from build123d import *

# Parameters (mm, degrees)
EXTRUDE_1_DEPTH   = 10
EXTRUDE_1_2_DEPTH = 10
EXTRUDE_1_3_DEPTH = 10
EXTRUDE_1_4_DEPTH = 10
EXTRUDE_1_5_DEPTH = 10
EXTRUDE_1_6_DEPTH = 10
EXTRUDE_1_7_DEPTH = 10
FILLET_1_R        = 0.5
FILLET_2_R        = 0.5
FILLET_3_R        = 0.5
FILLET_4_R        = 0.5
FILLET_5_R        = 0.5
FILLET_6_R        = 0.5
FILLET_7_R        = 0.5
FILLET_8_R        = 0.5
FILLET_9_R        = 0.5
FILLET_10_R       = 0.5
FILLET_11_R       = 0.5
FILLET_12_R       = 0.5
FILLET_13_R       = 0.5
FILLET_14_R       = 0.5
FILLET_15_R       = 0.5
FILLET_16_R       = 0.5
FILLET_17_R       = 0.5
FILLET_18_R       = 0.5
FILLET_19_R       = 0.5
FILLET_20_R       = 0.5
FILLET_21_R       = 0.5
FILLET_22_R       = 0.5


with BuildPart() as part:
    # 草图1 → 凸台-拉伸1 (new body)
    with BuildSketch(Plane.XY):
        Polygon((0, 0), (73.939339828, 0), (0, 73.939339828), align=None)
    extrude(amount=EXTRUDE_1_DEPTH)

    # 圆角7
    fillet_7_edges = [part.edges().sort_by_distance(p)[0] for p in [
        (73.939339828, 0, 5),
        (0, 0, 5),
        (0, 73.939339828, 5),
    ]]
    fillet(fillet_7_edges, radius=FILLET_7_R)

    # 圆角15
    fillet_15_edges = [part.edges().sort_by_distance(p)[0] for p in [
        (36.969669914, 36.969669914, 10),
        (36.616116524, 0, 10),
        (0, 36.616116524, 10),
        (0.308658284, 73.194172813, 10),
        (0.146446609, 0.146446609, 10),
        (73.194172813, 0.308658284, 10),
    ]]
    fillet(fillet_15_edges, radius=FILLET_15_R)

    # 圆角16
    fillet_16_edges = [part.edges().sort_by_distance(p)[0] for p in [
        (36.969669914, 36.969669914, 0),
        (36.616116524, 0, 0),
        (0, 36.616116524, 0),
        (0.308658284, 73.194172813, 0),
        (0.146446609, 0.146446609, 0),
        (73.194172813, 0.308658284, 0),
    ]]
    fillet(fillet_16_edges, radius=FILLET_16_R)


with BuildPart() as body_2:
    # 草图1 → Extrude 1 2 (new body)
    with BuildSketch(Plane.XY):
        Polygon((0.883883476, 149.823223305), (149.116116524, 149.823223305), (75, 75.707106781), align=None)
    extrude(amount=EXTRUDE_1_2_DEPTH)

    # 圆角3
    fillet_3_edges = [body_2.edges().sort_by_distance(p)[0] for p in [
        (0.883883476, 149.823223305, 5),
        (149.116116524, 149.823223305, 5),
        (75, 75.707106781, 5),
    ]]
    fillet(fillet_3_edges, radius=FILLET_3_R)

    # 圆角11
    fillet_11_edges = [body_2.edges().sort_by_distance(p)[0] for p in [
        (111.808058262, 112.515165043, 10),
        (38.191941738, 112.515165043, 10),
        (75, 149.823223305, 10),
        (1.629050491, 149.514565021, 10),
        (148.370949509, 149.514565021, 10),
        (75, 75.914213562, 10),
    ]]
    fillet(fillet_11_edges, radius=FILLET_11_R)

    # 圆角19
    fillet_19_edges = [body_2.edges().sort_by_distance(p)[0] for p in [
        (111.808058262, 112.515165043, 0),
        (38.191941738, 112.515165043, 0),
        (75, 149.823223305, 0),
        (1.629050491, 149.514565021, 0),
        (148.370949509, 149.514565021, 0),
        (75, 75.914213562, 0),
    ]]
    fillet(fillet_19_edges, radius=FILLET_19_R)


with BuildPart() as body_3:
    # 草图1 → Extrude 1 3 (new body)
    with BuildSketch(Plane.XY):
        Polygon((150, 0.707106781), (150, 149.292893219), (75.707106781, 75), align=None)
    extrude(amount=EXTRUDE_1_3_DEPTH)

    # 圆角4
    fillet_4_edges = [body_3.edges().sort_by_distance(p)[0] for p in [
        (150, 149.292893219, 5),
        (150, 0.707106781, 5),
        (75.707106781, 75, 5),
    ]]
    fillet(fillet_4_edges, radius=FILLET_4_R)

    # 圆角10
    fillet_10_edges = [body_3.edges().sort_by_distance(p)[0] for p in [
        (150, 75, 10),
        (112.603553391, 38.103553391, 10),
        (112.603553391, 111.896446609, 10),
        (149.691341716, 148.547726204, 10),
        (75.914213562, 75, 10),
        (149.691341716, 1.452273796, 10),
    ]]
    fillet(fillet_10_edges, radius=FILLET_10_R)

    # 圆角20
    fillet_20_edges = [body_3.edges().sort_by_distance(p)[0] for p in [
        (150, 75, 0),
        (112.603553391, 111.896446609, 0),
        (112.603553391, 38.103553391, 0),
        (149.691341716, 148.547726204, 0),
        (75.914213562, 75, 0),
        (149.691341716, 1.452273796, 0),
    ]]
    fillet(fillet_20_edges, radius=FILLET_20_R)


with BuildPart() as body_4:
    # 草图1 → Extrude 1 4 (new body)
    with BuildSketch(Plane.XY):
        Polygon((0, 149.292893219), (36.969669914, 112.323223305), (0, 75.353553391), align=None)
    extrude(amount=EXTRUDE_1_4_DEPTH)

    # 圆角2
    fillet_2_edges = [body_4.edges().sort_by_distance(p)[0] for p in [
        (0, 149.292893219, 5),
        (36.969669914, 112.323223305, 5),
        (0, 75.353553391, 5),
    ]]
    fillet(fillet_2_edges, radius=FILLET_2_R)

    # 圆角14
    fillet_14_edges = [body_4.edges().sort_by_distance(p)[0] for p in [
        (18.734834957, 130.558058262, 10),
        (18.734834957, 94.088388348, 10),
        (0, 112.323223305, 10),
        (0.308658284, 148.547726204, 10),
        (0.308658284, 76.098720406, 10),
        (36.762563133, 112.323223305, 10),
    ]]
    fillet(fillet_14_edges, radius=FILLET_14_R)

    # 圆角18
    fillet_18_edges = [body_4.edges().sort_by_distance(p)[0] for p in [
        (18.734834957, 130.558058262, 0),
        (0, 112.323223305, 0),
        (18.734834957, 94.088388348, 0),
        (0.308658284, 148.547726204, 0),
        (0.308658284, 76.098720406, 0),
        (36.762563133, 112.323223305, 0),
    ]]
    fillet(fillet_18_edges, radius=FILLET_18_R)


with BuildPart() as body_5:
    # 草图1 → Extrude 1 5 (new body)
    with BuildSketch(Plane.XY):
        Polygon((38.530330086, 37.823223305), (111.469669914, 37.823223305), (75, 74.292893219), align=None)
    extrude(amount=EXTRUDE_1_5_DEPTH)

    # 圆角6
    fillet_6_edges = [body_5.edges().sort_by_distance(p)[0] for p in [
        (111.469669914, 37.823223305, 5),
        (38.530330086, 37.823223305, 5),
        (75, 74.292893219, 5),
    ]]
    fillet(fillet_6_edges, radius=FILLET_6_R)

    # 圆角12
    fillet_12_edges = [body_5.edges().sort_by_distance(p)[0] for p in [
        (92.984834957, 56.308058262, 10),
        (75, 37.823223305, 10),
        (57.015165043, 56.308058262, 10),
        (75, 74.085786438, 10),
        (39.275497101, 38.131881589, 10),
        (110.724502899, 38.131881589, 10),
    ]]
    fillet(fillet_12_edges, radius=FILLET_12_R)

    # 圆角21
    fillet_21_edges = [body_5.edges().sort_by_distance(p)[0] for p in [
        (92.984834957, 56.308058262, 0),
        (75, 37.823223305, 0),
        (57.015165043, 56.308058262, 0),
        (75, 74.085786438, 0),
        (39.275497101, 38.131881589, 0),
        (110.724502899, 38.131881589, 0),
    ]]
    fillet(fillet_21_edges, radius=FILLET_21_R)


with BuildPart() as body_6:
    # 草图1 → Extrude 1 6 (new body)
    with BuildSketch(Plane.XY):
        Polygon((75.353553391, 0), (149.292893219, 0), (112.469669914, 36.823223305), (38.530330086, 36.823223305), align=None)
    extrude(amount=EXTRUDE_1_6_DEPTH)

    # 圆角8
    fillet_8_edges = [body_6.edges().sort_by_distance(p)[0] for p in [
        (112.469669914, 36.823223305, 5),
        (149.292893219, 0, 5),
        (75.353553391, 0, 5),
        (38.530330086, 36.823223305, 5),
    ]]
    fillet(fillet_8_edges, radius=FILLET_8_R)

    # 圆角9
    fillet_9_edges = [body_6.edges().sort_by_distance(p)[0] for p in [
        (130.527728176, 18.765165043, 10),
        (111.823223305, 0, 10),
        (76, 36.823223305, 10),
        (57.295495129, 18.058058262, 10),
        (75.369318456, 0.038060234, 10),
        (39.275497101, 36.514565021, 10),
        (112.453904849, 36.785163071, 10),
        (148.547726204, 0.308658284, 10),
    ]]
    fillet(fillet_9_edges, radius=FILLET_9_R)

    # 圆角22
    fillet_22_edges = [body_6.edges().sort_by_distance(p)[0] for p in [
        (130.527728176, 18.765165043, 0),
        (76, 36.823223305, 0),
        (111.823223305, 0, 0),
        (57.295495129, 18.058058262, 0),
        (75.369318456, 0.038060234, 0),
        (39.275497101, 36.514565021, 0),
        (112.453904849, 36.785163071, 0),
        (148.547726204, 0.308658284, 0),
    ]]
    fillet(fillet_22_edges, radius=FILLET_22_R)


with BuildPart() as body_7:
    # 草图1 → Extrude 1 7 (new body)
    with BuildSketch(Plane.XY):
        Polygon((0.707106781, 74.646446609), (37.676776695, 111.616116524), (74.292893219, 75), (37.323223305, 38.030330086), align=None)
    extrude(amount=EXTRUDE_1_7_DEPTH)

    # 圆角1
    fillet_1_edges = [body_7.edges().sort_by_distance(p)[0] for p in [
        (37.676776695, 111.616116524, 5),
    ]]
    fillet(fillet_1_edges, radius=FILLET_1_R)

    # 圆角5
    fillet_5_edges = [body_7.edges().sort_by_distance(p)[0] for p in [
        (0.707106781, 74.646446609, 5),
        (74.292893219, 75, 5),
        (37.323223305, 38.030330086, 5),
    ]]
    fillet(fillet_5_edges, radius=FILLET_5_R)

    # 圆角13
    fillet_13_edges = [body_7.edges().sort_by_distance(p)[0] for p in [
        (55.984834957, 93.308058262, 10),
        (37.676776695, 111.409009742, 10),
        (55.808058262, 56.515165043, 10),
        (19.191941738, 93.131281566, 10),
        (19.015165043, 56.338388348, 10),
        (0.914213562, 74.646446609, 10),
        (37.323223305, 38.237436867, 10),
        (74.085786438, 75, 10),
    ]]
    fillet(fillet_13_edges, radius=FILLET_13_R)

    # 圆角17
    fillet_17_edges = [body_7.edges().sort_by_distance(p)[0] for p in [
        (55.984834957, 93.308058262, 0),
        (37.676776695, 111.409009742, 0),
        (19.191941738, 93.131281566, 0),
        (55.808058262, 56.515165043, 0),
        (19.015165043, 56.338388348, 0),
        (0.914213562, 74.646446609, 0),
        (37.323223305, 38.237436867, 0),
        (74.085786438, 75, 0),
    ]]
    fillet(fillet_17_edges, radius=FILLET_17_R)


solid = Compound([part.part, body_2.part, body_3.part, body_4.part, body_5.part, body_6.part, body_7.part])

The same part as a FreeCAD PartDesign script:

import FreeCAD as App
import Part
import Sketcher

V = App.Vector
Q = App.Units.Quantity


def edges_at(feature, points):
    """Names of the edges that pass closest to the given points."""
    edges = feature.Shape.Edges
    near = lambda p: min(range(len(edges)), key=lambda i: edges[i].distToShape(Part.Vertex(*p))[0])
    return sorted({f"Edge{near(p) + 1}" for p in points})

doc = App.newDocument("Part")
params = doc.addObject("Spreadsheet::Sheet", "Params")
for row, (alias, value) in enumerate([
    ("pad1_length", "10 mm"),
    ("fillet_radius", "0.5 mm"),
    ("fillet2_radius", "0.5 mm"),
    ("fillet3_radius", "0.5 mm"),
    ("pad2_length", "10 mm"),
    ("fillet4_radius", "0.5 mm"),
    ("fillet5_radius", "0.5 mm"),
    ("fillet6_radius", "0.5 mm"),
    ("pad3_length", "10 mm"),
    ("fillet7_radius", "0.5 mm"),
    ("fillet8_radius", "0.5 mm"),
    ("fillet9_radius", "0.5 mm"),
    ("pad4_length", "10 mm"),
    ("fillet10_radius", "0.5 mm"),
    ("fillet11_radius", "0.5 mm"),
    ("fillet12_radius", "0.5 mm"),
    ("pad5_length", "10 mm"),
    ("fillet13_radius", "0.5 mm"),
    ("fillet14_radius", "0.5 mm"),
    ("fillet15_radius", "0.5 mm"),
    ("pad6_length", "10 mm"),
    ("fillet16_radius", "0.5 mm"),
    ("fillet17_radius", "0.5 mm"),
    ("fillet18_radius", "0.5 mm"),
    ("pad7_length", "10 mm"),
    ("fillet19_radius", "0.5 mm"),
    ("fillet20_radius", "0.5 mm"),
    ("fillet21_radius", "0.5 mm"),
    ("fillet22_radius", "0.5 mm"),
], start=1):
    params.set(f"A{row}", alias)
    params.set(f"B{row}", "=" + value)
    params.setAlias(f"B{row}", alias)

body = doc.addObject("PartDesign::Body", "Body")

sketch1 = body.newObject("Sketcher::SketchObject", "Sketch")
sketch1.AttachmentSupport = (doc.getObject("XY_Plane"), [""])
sketch1.MapMode = "FlatFace"
sketch1.addGeometry([
    Part.LineSegment(V(0, 0, 0), V(74, 0, 0)),
    Part.LineSegment(V(74, 0, 0), V(0, 74, 0)),
    Part.LineSegment(V(0, 74, 0), V(0, 0, 0)),
], False)
sketch1.addConstraint([
    Sketcher.Constraint("Coincident", 0, 2, 1, 1),
    Sketcher.Constraint("Coincident", 1, 2, 2, 1),
    Sketcher.Constraint("Coincident", 2, 2, 0, 1),
    Sketcher.Constraint("Horizontal", 0),
    Sketcher.Constraint("Vertical", 2),
    Sketcher.Constraint("Coincident", 2, 2, -1, 1),
    Sketcher.Constraint("Equal", 0, 2),
    Sketcher.Constraint("DistanceX", 0, 1, 0, 2, 73.93934),
])
pad1 = body.newObject("PartDesign::Pad", "Pad")
pad1.Profile = sketch1
pad1.setExpression("Length", "Params.pad1_length")
doc.recompute()

fillet = body.newObject("PartDesign::Fillet", "Fillet")
fillet.Base = (pad1, edges_at(pad1, [(73.939, 0, 5), (0, 0, 5), (0, 73.939, 5)]))
fillet.setExpression("Radius", "Params.fillet_radius")
doc.recompute()

fillet2 = body.newObject("PartDesign::Fillet", "Fillet001")
fillet2.Base = (fillet, edges_at(fillet, [
    (36.97, 36.97, 10),
    (36.616, 0, 10),
    (0, 36.616, 10),
    (0.309, 73.194, 10),
    (0.146, 0.146, 10),
    (73.194, 0.309, 10),
]))
fillet2.setExpression("Radius", "Params.fillet2_radius")
doc.recompute()

fillet3 = body.newObject("PartDesign::Fillet", "Fillet002")
fillet3.Base = (fillet2, edges_at(fillet2, [
    (36.97, 36.97, 0),
    (36.616, 0, 0),
    (0, 36.616, 0),
    (0.309, 73.194, 0),
    (0.146, 0.146, 0),
    (73.194, 0.309, 0),
]))
fillet3.setExpression("Radius", "Params.fillet3_radius")
body2 = doc.addObject("PartDesign::Body", "Body001")

sketch2 = body2.newObject("Sketcher::SketchObject", "Sketch001")
sketch2.AttachmentSupport = (doc.getObject("XY_Plane001"), [""])
sketch2.MapMode = "FlatFace"
sketch2.addGeometry([
    Part.LineSegment(V(149, 150, 0), V(1, 150, 0)),
    Part.LineSegment(V(1, 150, 0), V(75, 76, 0)),
    Part.LineSegment(V(75, 76, 0), V(149, 150, 0)),
], False)
sketch2.addConstraint([
    Sketcher.Constraint("Coincident", 0, 2, 1, 1),
    Sketcher.Constraint("Coincident", 1, 2, 2, 1),
    Sketcher.Constraint("Coincident", 2, 2, 0, 1),
    Sketcher.Constraint("Horizontal", 0),
    Sketcher.Constraint("Perpendicular", 1, 2),
    Sketcher.Constraint("Equal", 1, 2),
    Sketcher.Constraint("DistanceX", -1, 1, 1, 2, 75.0),
    Sketcher.Constraint("DistanceX", 0, 2, 0, 1, 148.232233),
    Sketcher.Constraint("DistanceY", -1, 1, 0, 2, 149.823223),
])
pad2 = body2.newObject("PartDesign::Pad", "Pad001")
pad2.Profile = sketch2
pad2.setExpression("Length", "Params.pad2_length")
doc.recompute()

fillet4 = body2.newObject("PartDesign::Fillet", "Fillet003")
fillet4.Base = (pad2, edges_at(pad2, [(0.884, 149.823, 5), (149.116, 149.823, 5), (75, 75.707, 5)]))
fillet4.setExpression("Radius", "Params.fillet4_radius")
doc.recompute()

fillet5 = body2.newObject("PartDesign::Fillet", "Fillet004")
fillet5.Base = (fillet4, edges_at(fillet4, [
    (111.808, 112.515, 10),
    (38.192, 112.515, 10),
    (75, 149.823, 10),
    (1.629, 149.515, 10),
    (148.371, 149.515, 10),
    (75, 75.914, 10),
]))
fillet5.setExpression("Radius", "Params.fillet5_radius")
doc.recompute()

fillet6 = body2.newObject("PartDesign::Fillet", "Fillet005")
fillet6.Base = (fillet5, edges_at(fillet5, [
    (111.808, 112.515, 0),
    (38.192, 112.515, 0),
    (75, 149.823, 0),
    (1.629, 149.515, 0),
    (148.371, 149.515, 0),
    (75, 75.914, 0),
]))
fillet6.setExpression("Radius", "Params.fillet6_radius")
body3 = doc.addObject("PartDesign::Body", "Body002")

sketch3 = body3.newObject("Sketcher::SketchObject", "Sketch002")
sketch3.AttachmentSupport = (doc.getObject("XY_Plane002"), [""])
sketch3.MapMode = "FlatFace"
sketch3.addGeometry([
    Part.LineSegment(V(150, 1, 0), V(150, 149, 0)),
    Part.LineSegment(V(150, 149, 0), V(76, 75, 0)),
    Part.LineSegment(V(76, 75, 0), V(150, 1, 0)),
], False)
sketch3.addConstraint([
    Sketcher.Constraint("Coincident", 0, 2, 1, 1),
    Sketcher.Constraint("Coincident", 1, 2, 2, 1),
    Sketcher.Constraint("Coincident", 2, 2, 0, 1),
    Sketcher.Constraint("Vertical", 0),
    Sketcher.Constraint("Perpendicular", 1, 2),
    Sketcher.Constraint("Equal", 1, 2),
    Sketcher.Constraint("DistanceX", -1, 1, 0, 2, 150.0),
    Sketcher.Constraint("DistanceY", -1, 1, 1, 2, 75.0),
    Sketcher.Constraint("DistanceY", 0, 1, 0, 2, 148.585786),
])
pad3 = body3.newObject("PartDesign::Pad", "Pad002")
pad3.Profile = sketch3
pad3.setExpression("Length", "Params.pad3_length")
doc.recompute()

fillet7 = body3.newObject("PartDesign::Fillet", "Fillet006")
fillet7.Base = (pad3, edges_at(pad3, [(150, 149.293, 5), (150, 0.707, 5), (75.707, 75, 5)]))
fillet7.setExpression("Radius", "Params.fillet7_radius")
doc.recompute()

fillet8 = body3.newObject("PartDesign::Fillet", "Fillet007")
fillet8.Base = (fillet7, edges_at(fillet7, [
    (150, 75, 10),
    (112.604, 38.104, 10),
    (112.604, 111.896, 10),
    (149.691, 148.548, 10),
    (75.914, 75, 10),
    (149.691, 1.452, 10),
]))
fillet8.setExpression("Radius", "Params.fillet8_radius")
doc.recompute()

fillet9 = body3.newObject("PartDesign::Fillet", "Fillet008")
fillet9.Base = (fillet8, edges_at(fillet8, [
    (150, 75, 0),
    (112.604, 111.896, 0),
    (112.604, 38.104, 0),
    (149.691, 148.548, 0),
    (75.914, 75, 0),
    (149.691, 1.452, 0),
]))
fillet9.setExpression("Radius", "Params.fillet9_radius")
body4 = doc.addObject("PartDesign::Body", "Body003")

sketch4 = body4.newObject("Sketcher::SketchObject", "Sketch003")
sketch4.AttachmentSupport = (doc.getObject("XY_Plane003"), [""])
sketch4.MapMode = "FlatFace"
sketch4.addGeometry([
    Part.LineSegment(V(37, 112, 0), V(0, 149, 0)),
    Part.LineSegment(V(0, 149, 0), V(0, 75, 0)),
    Part.LineSegment(V(0, 75, 0), V(37, 112, 0)),
], False)
sketch4.addConstraint([
    Sketcher.Constraint("Coincident", 0, 2, 1, 1),
    Sketcher.Constraint("Coincident", 1, 2, 2, 1),
    Sketcher.Constraint("Coincident", 2, 2, 0, 1),
    Sketcher.Constraint("Vertical", 1),
    Sketcher.Constraint("PointOnObject", 0, 2, -2),
    Sketcher.Constraint("Perpendicular", 0, 2),
    Sketcher.Constraint("Equal", 0, 2),
    Sketcher.Constraint("DistanceY", 1, 2, 1, 1, 73.93934),
    Sketcher.Constraint("DistanceY", -1, 1, 0, 2, 149.292893),
])
pad4 = body4.newObject("PartDesign::Pad", "Pad003")
pad4.Profile = sketch4
pad4.setExpression("Length", "Params.pad4_length")
doc.recompute()

fillet10 = body4.newObject("PartDesign::Fillet", "Fillet009")
fillet10.Base = (pad4, edges_at(pad4, [(0, 149.293, 5), (36.97, 112.323, 5), (0, 75.354, 5)]))
fillet10.setExpression("Radius", "Params.fillet10_radius")
doc.recompute()

fillet11 = body4.newObject("PartDesign::Fillet", "Fillet010")
fillet11.Base = (fillet10, edges_at(fillet10, [
    (18.735, 130.558, 10),
    (18.735, 94.088, 10),
    (0, 112.323, 10),
    (0.309, 148.548, 10),
    (0.309, 76.099, 10),
    (36.763, 112.323, 10),
]))
fillet11.setExpression("Radius", "Params.fillet11_radius")
doc.recompute()

fillet12 = body4.newObject("PartDesign::Fillet", "Fillet011")
fillet12.Base = (fillet11, edges_at(fillet11, [
    (18.735, 130.558, 0),
    (0, 112.323, 0),
    (18.735, 94.088, 0),
    (0.309, 148.548, 0),
    (0.309, 76.099, 0),
    (36.763, 112.323, 0),
]))
fillet12.setExpression("Radius", "Params.fillet12_radius")
body5 = doc.addObject("PartDesign::Body", "Body004")

sketch5 = body5.newObject("Sketcher::SketchObject", "Sketch004")
sketch5.AttachmentSupport = (doc.getObject("XY_Plane004"), [""])
sketch5.MapMode = "FlatFace"
sketch5.addGeometry([
    Part.LineSegment(V(39, 38, 0), V(111, 38, 0)),
    Part.LineSegment(V(111, 38, 0), V(75, 74, 0)),
    Part.LineSegment(V(75, 74, 0), V(39, 38, 0)),
], False)
sketch5.addConstraint([
    Sketcher.Constraint("Coincident", 0, 2, 1, 1),
    Sketcher.Constraint("Coincident", 1, 2, 2, 1),
    Sketcher.Constraint("Coincident", 2, 2, 0, 1),
    Sketcher.Constraint("Horizontal", 0),
    Sketcher.Constraint("Perpendicular", 1, 2),
    Sketcher.Constraint("Equal", 1, 2),
    Sketcher.Constraint("DistanceX", -1, 1, 1, 2, 75.0),
    Sketcher.Constraint("Distance", 1, 51.575902),
    Sketcher.Constraint("DistanceY", -1, 1, 0, 2, 37.823223),
])
pad5 = body5.newObject("PartDesign::Pad", "Pad004")
pad5.Profile = sketch5
pad5.setExpression("Length", "Params.pad5_length")
doc.recompute()

fillet13 = body5.newObject("PartDesign::Fillet", "Fillet012")
fillet13.Base = (pad5, edges_at(pad5, [(111.47, 37.823, 5), (38.53, 37.823, 5), (75, 74.293, 5)]))
fillet13.setExpression("Radius", "Params.fillet13_radius")
doc.recompute()

fillet14 = body5.newObject("PartDesign::Fillet", "Fillet013")
fillet14.Base = (fillet13, edges_at(fillet13, [
    (92.985, 56.308, 10),
    (75, 37.823, 10),
    (57.015, 56.308, 10),
    (75, 74.086, 10),
    (39.275, 38.132, 10),
    (110.725, 38.132, 10),
]))
fillet14.setExpression("Radius", "Params.fillet14_radius")
doc.recompute()

fillet15 = body5.newObject("PartDesign::Fillet", "Fillet014")
fillet15.Base = (fillet14, edges_at(fillet14, [
    (92.985, 56.308, 0),
    (75, 37.823, 0),
    (57.015, 56.308, 0),
    (75, 74.086, 0),
    (39.275, 38.132, 0),
    (110.725, 38.132, 0),
]))
fillet15.setExpression("Radius", "Params.fillet15_radius")
body6 = doc.addObject("PartDesign::Body", "Body005")

sketch6 = body6.newObject("Sketcher::SketchObject", "Sketch005")
sketch6.AttachmentSupport = (doc.getObject("XY_Plane005"), [""])
sketch6.MapMode = "FlatFace"
sketch6.addGeometry([
    Part.LineSegment(V(75, 0, 0), V(149, 0, 0)),
    Part.LineSegment(V(149, 0, 0), V(112, 37, 0)),
    Part.LineSegment(V(112, 37, 0), V(39, 37, 0)),
    Part.LineSegment(V(39, 37, 0), V(75, 0, 0)),
], False)
sketch6.addConstraint([
    Sketcher.Constraint("Coincident", 0, 2, 1, 1),
    Sketcher.Constraint("Coincident", 1, 2, 2, 1),
    Sketcher.Constraint("Coincident", 2, 2, 3, 1),
    Sketcher.Constraint("Coincident", 3, 2, 0, 1),
    Sketcher.Constraint("Horizontal", 0),
    Sketcher.Constraint("Horizontal", 2),
    Sketcher.Constraint("PointOnObject", 0, 2, -1),
    Sketcher.Constraint("Parallel", 1, 3),
    Sketcher.Constraint("Angle", 1, Q("135 deg")),
    Sketcher.Constraint("Distance", 1, 52.075902),
    Sketcher.Constraint("DistanceX", 0, 1, 0, 2, 73.93934),
    Sketcher.Constraint("DistanceX", -1, 1, 1, 2, 112.46967),
])
pad6 = body6.newObject("PartDesign::Pad", "Pad005")
pad6.Profile = sketch6
pad6.setExpression("Length", "Params.pad6_length")
doc.recompute()

fillet16 = body6.newObject("PartDesign::Fillet", "Fillet015")
fillet16.Base = (pad6, edges_at(pad6, [
    (112.47, 36.823, 5),
    (149.293, 0, 5),
    (75.354, 0, 5),
    (38.53, 36.823, 5),
]))
fillet16.setExpression("Radius", "Params.fillet16_radius")
doc.recompute()

fillet17 = body6.newObject("PartDesign::Fillet", "Fillet016")
fillet17.Base = (fillet16, edges_at(fillet16, [
    (130.528, 18.765, 10),
    (111.823, 0, 10),
    (76, 36.823, 10),
    (57.295, 18.058, 10),
    (75.369, 0.038, 10),
    (39.275, 36.515, 10),
    (112.454, 36.785, 10),
    (148.548, 0.309, 10),
]))
fillet17.setExpression("Radius", "Params.fillet17_radius")
doc.recompute()

fillet18 = body6.newObject("PartDesign::Fillet", "Fillet017")
fillet18.Base = (fillet17, edges_at(fillet17, [
    (130.528, 18.765, 0),
    (76, 36.823, 0),
    (111.823, 0, 0),
    (57.295, 18.058, 0),
    (75.369, 0.038, 0),
    (39.275, 36.515, 0),
    (112.454, 36.785, 0),
    (148.548, 0.309, 0),
]))
fillet18.setExpression("Radius", "Params.fillet18_radius")
body7 = doc.addObject("PartDesign::Body", "Body006")

sketch7 = body7.newObject("Sketcher::SketchObject", "Sketch006")
sketch7.AttachmentSupport = (doc.getObject("XY_Plane006"), [""])
sketch7.MapMode = "FlatFace"
sketch7.addGeometry([
    Part.LineSegment(V(38, 112, 0), V(1, 75, 0)),
    Part.LineSegment(V(1, 75, 0), V(37, 38, 0)),
    Part.LineSegment(V(37, 38, 0), V(74, 75, 0)),
    Part.LineSegment(V(74, 75, 0), V(38, 112, 0)),
], False)
sketch7.addConstraint([
    Sketcher.Constraint("Coincident", 0, 2, 1, 1),
    Sketcher.Constraint("Coincident", 1, 2, 2, 1),
    Sketcher.Constraint("Coincident", 2, 2, 3, 1),
    Sketcher.Constraint("Coincident", 3, 2, 0, 1),
    Sketcher.Constraint("Perpendicular", 0, 1),
    Sketcher.Constraint("Perpendicular", 1, 2),
    Sketcher.Constraint("Perpendicular", 2, 3),
    Sketcher.Constraint("Angle", 0, Q("-135 deg")),
    Sketcher.Constraint("DistanceY", -1, 1, 2, 2, 75.0),
    Sketcher.Constraint("Distance", 0, 52.283009),
    Sketcher.Constraint("Distance", 1, 51.783009),
    Sketcher.Constraint("DistanceX", -1, 1, 0, 2, 0.707107),
])
pad7 = body7.newObject("PartDesign::Pad", "Pad006")
pad7.Profile = sketch7
pad7.setExpression("Length", "Params.pad7_length")
doc.recompute()

fillet19 = body7.newObject("PartDesign::Fillet", "Fillet018")
fillet19.Base = (pad7, edges_at(pad7, [(37.677, 111.616, 5)]))
fillet19.setExpression("Radius", "Params.fillet19_radius")
doc.recompute()

fillet20 = body7.newObject("PartDesign::Fillet", "Fillet019")
fillet20.Base = (fillet19, edges_at(fillet19, [(0.707, 74.646, 5), (74.293, 75, 5), (37.323, 38.03, 5)]))
fillet20.setExpression("Radius", "Params.fillet20_radius")
doc.recompute()

fillet21 = body7.newObject("PartDesign::Fillet", "Fillet020")
fillet21.Base = (fillet20, edges_at(fillet20, [
    (55.985, 93.308, 10),
    (37.677, 111.409, 10),
    (55.808, 56.515, 10),
    (19.192, 93.131, 10),
    (19.015, 56.338, 10),
    (0.914, 74.646, 10),
    (37.323, 38.237, 10),
    (74.086, 75, 10),
]))
fillet21.setExpression("Radius", "Params.fillet21_radius")
doc.recompute()

fillet22 = body7.newObject("PartDesign::Fillet", "Fillet021")
fillet22.Base = (fillet21, edges_at(fillet21, [
    (55.985, 93.308, 0),
    (37.677, 111.409, 0),
    (19.192, 93.131, 0),
    (55.808, 56.515, 0),
    (19.015, 56.338, 0),
    (0.914, 74.646, 0),
    (37.323, 38.237, 0),
    (74.086, 75, 0),
]))
fillet22.setExpression("Radius", "Params.fillet22_radius")

doc.recompute()
